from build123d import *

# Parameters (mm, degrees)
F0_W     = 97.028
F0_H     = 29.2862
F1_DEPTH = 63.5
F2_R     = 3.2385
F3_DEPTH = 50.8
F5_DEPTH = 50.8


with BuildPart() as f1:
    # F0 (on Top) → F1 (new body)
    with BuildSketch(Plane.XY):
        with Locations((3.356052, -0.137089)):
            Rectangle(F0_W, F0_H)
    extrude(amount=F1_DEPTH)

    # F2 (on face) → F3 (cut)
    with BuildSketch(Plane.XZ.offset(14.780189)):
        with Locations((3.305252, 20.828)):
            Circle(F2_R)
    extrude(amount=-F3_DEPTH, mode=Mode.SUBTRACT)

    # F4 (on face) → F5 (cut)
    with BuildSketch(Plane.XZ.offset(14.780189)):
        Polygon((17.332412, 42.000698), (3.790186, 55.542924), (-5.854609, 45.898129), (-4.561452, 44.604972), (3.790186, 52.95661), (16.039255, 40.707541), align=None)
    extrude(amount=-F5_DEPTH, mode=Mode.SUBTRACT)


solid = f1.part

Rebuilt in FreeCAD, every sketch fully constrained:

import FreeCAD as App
import Part
import Sketcher
from FreeCAD import Vector
Q = App.Units.Quantity


def add_polygon(sketch, points):
    """Adds a closed chain of lines whose ends are joined by coincident constraints."""
    first, n = sketch.GeometryCount, len(points)
    for a, b in zip(points, points[1:] + points[:1]):
        sketch.addGeometry(Part.LineSegment(App.Vector(*a, 0), App.Vector(*b, 0)), False)
    for i in range(n):
        sketch.addConstraint(Sketcher.Constraint("Coincident", first + i, 2, first + (i + 1) % n, 1))

doc = App.newDocument("Part")
body = doc.addObject("PartDesign::Body", "Body")

# Sketch on XY plane
sketch1 = doc.addObject("Sketcher::SketchObject", "Sketch")
body.addObject(sketch1)
sketch1.AttachmentSupport = (doc.XY_Plane, [""])
sketch1.MapMode = "FlatFace"
add_polygon(sketch1, [(-45, 15), (-45, -15), (52, -15), (52, 15)])  # lines 0-3
sketch1.addConstraint(Sketcher.Constraint("Vertical", 0))
sketch1.addConstraint(Sketcher.Constraint("Horizontal", 1))
sketch1.addConstraint(Sketcher.Constraint("Vertical", 2))
sketch1.addConstraint(Sketcher.Constraint("Horizontal", 3))
sketch1.addConstraint(Sketcher.Constraint("DistanceX", 1, 1, 1, 2, Q("3.82 in")))
sketch1.addConstraint(Sketcher.Constraint("DistanceY", 0, 2, 0, 1, Q("1.153 in")))
sketch1.addConstraint(Sketcher.Constraint("DistanceY", 0, 2, -1, 1, 14.780189))
sketch1.addConstraint(Sketcher.Constraint("DistanceX", 0, 2, -1, 1, 45.157948))
pad1 = doc.addObject("PartDesign::Pad", "Pad")
body.addObject(pad1)
pad1.Profile = sketch1
pad1.Length = Q("2.5 in")

# Sketch on XZ plane
sketch2 = doc.addObject("Sketcher::SketchObject", "Sketch001")
body.addObject(sketch2)
sketch2.AttachmentSupport = (doc.XZ_Plane, [""])
sketch2.MapMode = "FlatFace"
sketch2.AttachmentOffset = App.Placement(Vector(0, 0, 14.780189), App.Rotation())
sketch2.addGeometry(Part.Circle(Vector(3.3, 20.8, 0), Vector(0, 0, 1), 3.2), False)
sketch2.addConstraint(Sketcher.Constraint("Diameter", 0, Q("0.255 in")))
sketch2.addConstraint(Sketcher.Constraint("DistanceY", -1, 1, 0, 3, Q("0.82 in")))
sketch2.addConstraint(Sketcher.Constraint("DistanceX", -1, 1, 0, 3, 3.305252))
pocket1 = doc.addObject("PartDesign::Pocket", "Pocket")
body.addObject(pocket1)
pocket1.Profile = sketch2
pocket1.Length = Q("2 in")

# Sketch on XZ plane
sketch3 = doc.addObject("Sketcher::SketchObject", "Sketch002")
body.addObject(sketch3)
sketch3.AttachmentSupport = (doc.XZ_Plane, [""])
sketch3.MapMode = "FlatFace"
sketch3.AttachmentOffset = App.Placement(Vector(0, 0, 14.780189), App.Rotation())
add_polygon(sketch3, [(17.3, 42), (3.8, 55.5), (-5.9, 45.9), (-4.6, 44.6), (3.8, 53), (16, 40.7)])  # lines 0-5
sketch3.addConstraint(Sketcher.Constraint("Perpendicular", 0, 1))
sketch3.addConstraint(Sketcher.Constraint("Perpendicular", 1, 2))
sketch3.addConstraint(Sketcher.Constraint("Perpendicular", 2, 3))
sketch3.addConstraint(Sketcher.Constraint("Perpendicular", 3, 4))
sketch3.addConstraint(Sketcher.Constraint("Perpendicular", 4, 5))
sketch3.addConstraint(Sketcher.Constraint("Vertical", 0, 2, 3, 2))
sketch3.addConstraint(Sketcher.Constraint("Equal", 2, 5))
sketch3.addConstraint(Sketcher.Constraint("Distance", 0, Q("0.754 in")))
sketch3.addConstraint(Sketcher.Constraint("Distance", 1, Q("0.537 in")))
sketch3.addConstraint(Sketcher.Constraint("Distance", 2, Q("0.072 in")))
sketch3.addConstraint(Sketcher.Constraint("DistanceX", 1, 2, -1, 1, 5.854609))
sketch3.addConstraint(Sketcher.Constraint("DistanceY", -1, 1, 1, 2, 45.898129))
pocket2 = doc.addObject("PartDesign::Pocket", "Pocket001")
body.addObject(pocket2)
pocket2.Profile = sketch3
pocket2.Length = Q("2 in")

doc.recompute()
